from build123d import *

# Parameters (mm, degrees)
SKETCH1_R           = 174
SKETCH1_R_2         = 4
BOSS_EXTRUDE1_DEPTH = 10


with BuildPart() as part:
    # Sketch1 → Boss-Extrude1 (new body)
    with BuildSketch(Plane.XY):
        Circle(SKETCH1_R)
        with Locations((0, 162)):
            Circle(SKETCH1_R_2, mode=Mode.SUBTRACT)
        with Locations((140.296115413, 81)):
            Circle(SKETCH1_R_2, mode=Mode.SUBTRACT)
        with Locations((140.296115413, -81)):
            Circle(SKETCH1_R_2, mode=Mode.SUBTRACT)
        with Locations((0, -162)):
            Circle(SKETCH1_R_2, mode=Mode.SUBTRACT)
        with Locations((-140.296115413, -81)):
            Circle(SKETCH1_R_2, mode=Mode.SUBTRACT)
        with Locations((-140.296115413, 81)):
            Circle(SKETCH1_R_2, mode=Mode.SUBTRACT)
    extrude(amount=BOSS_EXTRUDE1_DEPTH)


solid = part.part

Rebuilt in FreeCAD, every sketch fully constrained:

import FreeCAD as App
import Part
import Sketcher

doc = App.newDocument("Part")
body = doc.addObject("PartDesign::Body", "Body")

sketch1 = doc.addObject("Sketcher::SketchObject", "Sketch")
body.addObject(sketch1)
sketch1.AttachmentSupport = (doc.XY_Plane, [""])
sketch1.MapMode = "FlatFace"
sketch1.addGeometry(Part.Circle(App.Vector(0, 0, 0), App.Vector(0, 0, 1), 174), False)
sketch1.addGeometry(Part.Circle(App.Vector(-140.296115, -81, 0), App.Vector(0, 0, 1), 4), False)
sketch1.addGeometry(Part.Circle(App.Vector(0, -162, 0), App.Vector(0, 0, 1), 4), False)
sketch1.addGeometry(Part.Circle(App.Vector(140.296115, -81, 0), App.Vector(0, 0, 1), 4), False)
sketch1.addGeometry(Part.Circle(App.Vector(-140.296115, 81, 0), App.Vector(0, 0, 1), 4), False)
sketch1.addGeometry(Part.Circle(App.Vector(140.296115, 81, 0), App.Vector(0, 0, 1), 4), False)
sketch1.addGeometry(Part.Circle(App.Vector(0, 162, 0), App.Vector(0, 0, 1), 4), False)
sketch1.addConstraint(Sketcher.Constraint("Coincident", 0, 3, -1, 1))
sketch1.addConstraint(Sketcher.Constraint("Equal", 1, 2))
sketch1.addConstraint(Sketcher.Constraint("Equal", 2, 3))
sketch1.addConstraint(Sketcher.Constraint("Equal", 3, 4))
sketch1.addConstraint(Sketcher.Constraint("Equal", 4, 5))
sketch1.addConstraint(Sketcher.Constraint("Equal", 5, 6))
sketch1.addConstraint(Sketcher.Constraint("Symmetric", 3, 3, 4, 3, -1, 1))
sketch1.addConstraint(Sketcher.Constraint("Symmetric", 1, 3, 5, 3, -1, 1))
sketch1.addConstraint(Sketcher.Constraint("Symmetric", 2, 3, 6, 3, -1, 1))
sketch1.addConstraint(Sketcher.Constraint("Symmetric", 1, 3, 3, 3, -2))
sketch1.addConstraint(Sketcher.Constraint("PointOnObject", 2, 3, -2))
sketch1.addConstraint(Sketcher.Constraint("Diameter", 0, 348.0))
sketch1.addConstraint(Sketcher.Constraint("Diameter", 1, 8.0))
sketch1.addConstraint(Sketcher.Constraint("DistanceY", 1, 3, -1, 1, 81.0))
sketch1.addConstraint(Sketcher.Constraint("DistanceY", 2, 3, -1, 1, 162.0))
sketch1.addConstraint(Sketcher.Constraint("DistanceX", 1, 3, 3, 3, 280.592231))
pad1 = doc.addObject("PartDesign::Pad", "Pad")
body.addObject(pad1)
pad1.Profile = sketch1
pad1.Length = 10

doc.recompute()
